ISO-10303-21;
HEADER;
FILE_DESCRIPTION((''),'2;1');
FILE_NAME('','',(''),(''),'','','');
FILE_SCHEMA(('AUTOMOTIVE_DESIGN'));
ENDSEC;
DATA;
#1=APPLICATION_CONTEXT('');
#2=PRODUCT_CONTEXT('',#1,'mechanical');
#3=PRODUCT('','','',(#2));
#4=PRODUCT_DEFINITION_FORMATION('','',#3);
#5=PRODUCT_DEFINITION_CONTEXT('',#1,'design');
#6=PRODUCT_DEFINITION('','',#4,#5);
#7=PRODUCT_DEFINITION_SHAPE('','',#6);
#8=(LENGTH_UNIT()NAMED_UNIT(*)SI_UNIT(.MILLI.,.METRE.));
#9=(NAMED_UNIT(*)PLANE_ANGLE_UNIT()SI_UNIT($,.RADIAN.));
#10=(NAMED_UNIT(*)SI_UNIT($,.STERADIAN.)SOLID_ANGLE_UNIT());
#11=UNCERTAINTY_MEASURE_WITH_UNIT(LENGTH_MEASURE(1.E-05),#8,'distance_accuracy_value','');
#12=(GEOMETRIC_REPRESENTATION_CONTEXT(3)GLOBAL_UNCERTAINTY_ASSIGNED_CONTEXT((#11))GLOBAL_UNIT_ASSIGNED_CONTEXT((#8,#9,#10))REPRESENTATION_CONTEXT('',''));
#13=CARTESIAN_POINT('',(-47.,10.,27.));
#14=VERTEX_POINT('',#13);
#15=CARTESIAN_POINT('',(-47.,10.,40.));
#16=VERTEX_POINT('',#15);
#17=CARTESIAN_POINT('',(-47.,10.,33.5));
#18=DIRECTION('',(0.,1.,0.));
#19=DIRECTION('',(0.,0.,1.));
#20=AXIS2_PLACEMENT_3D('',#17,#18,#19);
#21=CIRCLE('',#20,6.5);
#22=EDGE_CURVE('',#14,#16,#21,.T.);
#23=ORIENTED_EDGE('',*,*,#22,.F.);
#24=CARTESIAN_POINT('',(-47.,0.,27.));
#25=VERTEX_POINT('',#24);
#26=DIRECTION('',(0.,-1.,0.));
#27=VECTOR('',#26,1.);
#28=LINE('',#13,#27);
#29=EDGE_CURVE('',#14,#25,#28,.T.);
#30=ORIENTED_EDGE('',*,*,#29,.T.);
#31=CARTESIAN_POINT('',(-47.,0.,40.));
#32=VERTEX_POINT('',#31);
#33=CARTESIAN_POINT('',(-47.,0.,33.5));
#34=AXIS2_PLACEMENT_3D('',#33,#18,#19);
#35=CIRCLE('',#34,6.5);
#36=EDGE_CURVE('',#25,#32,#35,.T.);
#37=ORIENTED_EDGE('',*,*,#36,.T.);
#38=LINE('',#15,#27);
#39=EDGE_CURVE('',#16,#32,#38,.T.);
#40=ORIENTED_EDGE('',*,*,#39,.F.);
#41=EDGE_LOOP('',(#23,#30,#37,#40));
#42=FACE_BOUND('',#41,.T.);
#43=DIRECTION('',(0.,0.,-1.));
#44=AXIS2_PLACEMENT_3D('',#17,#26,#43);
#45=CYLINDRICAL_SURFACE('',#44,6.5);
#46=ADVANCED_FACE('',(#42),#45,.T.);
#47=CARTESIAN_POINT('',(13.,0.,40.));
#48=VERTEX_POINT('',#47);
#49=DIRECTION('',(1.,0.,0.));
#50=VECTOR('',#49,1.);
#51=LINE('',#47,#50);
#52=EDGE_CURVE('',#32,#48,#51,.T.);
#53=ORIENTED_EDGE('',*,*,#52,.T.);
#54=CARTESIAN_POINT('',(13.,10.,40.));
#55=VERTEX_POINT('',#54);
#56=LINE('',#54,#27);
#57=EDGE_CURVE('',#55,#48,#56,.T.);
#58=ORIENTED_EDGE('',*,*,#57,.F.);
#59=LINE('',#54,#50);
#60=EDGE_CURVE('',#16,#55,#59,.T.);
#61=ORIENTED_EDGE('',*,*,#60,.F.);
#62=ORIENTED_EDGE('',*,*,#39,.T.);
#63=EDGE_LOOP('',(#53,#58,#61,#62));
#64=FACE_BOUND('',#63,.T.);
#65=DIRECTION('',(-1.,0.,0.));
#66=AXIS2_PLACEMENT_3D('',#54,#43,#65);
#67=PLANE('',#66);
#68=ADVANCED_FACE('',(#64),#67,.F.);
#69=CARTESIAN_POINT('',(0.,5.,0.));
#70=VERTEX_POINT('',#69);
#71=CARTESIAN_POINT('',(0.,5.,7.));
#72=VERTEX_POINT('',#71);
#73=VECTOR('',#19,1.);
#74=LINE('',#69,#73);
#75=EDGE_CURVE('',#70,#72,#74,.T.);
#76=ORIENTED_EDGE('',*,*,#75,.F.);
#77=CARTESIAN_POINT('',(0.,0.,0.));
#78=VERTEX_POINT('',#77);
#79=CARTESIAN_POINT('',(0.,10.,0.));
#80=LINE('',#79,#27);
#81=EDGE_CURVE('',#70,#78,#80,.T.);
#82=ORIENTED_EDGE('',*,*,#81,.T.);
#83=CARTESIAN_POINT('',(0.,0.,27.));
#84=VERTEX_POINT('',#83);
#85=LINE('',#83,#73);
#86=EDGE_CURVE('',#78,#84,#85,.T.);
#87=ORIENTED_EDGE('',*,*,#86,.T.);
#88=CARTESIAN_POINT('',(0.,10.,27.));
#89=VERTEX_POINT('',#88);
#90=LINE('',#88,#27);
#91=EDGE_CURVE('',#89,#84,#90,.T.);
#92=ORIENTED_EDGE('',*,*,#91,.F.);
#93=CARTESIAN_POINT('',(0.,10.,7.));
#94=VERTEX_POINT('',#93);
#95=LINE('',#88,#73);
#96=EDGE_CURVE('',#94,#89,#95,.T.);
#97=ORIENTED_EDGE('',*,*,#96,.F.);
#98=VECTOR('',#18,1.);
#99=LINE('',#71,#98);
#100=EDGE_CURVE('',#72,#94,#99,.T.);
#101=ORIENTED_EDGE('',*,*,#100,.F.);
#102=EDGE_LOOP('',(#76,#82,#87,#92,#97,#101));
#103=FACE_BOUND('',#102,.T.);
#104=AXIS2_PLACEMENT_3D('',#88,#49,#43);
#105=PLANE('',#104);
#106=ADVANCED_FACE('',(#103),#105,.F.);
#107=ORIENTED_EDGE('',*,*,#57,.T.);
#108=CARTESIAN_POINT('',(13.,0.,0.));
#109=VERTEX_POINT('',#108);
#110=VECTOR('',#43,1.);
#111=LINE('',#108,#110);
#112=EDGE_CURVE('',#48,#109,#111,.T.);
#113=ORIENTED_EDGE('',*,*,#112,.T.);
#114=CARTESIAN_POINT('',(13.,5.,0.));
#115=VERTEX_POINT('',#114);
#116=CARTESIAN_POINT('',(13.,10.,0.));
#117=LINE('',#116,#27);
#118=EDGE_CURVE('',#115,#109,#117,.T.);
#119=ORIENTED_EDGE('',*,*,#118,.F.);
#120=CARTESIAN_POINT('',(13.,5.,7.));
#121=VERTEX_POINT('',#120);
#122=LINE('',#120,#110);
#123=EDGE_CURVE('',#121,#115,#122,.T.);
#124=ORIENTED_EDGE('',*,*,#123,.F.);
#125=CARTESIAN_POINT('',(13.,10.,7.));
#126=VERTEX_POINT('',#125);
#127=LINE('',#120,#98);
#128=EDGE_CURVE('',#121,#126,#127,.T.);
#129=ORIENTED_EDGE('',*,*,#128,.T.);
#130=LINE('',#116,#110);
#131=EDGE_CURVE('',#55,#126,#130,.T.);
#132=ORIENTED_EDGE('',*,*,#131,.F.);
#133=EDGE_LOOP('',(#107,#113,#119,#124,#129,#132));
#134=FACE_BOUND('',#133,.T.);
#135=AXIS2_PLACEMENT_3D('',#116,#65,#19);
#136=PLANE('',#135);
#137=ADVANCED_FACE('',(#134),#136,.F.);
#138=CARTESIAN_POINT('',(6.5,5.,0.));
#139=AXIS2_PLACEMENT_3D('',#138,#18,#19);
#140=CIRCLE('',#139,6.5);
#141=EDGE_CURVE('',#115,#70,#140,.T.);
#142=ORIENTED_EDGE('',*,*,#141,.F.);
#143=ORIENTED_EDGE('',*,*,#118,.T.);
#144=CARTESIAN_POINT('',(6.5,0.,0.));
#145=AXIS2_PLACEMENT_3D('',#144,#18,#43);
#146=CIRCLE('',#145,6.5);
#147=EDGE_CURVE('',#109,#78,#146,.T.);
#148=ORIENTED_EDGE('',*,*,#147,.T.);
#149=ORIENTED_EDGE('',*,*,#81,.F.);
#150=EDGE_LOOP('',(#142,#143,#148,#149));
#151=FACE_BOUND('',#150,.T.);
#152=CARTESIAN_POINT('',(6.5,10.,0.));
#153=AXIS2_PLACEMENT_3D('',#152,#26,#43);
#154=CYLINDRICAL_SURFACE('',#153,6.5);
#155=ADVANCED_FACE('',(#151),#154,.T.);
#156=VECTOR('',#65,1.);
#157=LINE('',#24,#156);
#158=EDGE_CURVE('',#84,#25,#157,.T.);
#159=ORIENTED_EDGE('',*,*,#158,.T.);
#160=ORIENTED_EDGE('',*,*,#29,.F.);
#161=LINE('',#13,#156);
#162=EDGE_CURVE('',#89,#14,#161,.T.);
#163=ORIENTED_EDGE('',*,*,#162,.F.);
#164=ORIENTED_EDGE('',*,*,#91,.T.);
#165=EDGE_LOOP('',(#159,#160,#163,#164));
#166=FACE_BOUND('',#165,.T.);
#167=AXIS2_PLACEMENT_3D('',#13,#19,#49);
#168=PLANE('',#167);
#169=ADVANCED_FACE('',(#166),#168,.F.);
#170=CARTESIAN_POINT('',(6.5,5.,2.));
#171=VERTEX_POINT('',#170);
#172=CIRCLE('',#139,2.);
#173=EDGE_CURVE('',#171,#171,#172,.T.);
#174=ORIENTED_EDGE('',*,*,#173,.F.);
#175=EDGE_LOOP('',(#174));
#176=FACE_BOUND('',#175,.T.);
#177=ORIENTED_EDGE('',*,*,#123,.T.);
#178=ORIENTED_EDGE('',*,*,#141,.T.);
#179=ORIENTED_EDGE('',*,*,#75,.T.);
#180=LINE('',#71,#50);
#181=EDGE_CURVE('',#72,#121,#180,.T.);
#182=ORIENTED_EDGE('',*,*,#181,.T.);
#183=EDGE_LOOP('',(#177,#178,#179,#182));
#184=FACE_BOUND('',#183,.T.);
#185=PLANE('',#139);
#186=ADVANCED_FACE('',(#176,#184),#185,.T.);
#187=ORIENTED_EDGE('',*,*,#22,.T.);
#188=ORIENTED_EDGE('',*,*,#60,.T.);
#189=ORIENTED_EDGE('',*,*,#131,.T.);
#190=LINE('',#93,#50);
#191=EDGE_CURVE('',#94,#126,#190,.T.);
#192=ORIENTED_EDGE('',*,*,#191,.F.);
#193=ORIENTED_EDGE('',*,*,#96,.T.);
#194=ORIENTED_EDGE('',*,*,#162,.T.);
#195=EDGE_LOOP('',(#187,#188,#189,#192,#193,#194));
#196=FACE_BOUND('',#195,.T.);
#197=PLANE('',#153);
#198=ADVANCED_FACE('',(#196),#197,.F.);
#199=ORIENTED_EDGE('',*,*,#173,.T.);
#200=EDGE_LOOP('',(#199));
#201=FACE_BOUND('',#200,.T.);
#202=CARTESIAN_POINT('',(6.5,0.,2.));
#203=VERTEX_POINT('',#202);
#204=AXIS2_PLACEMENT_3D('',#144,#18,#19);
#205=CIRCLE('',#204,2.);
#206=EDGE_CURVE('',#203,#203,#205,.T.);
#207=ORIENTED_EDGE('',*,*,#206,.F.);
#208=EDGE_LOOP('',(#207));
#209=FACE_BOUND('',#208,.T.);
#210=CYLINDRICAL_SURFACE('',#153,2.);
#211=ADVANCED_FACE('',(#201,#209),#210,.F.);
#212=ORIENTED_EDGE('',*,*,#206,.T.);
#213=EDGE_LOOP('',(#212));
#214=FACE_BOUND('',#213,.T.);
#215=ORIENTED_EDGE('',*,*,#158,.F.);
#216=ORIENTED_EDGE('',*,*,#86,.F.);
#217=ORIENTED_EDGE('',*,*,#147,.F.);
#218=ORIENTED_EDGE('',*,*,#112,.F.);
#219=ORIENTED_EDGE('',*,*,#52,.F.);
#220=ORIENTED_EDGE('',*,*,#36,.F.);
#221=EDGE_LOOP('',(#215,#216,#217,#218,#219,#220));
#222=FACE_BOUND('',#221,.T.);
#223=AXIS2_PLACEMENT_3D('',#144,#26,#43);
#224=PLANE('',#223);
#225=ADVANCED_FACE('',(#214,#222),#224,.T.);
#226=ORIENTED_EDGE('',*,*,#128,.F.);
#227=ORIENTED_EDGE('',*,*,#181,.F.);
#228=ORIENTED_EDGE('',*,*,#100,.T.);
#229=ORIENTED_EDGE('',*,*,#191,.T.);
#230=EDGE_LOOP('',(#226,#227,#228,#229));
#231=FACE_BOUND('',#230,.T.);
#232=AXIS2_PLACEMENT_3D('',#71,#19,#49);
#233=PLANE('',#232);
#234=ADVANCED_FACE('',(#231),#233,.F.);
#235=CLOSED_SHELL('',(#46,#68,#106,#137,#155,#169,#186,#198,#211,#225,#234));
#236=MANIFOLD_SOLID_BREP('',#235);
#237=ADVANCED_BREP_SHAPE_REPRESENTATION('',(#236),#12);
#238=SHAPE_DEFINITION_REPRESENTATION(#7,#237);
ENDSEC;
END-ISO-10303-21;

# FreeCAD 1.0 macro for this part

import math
import FreeCAD as App
import Part
import Sketcher
Q = App.Units.Quantity

doc = App.newDocument("Part")
body = doc.addObject("PartDesign::Body", "Body")

sketch1 = body.newObject("Sketcher::SketchObject", "Sketch")
sketch1.AttachmentSupport = (doc.getObject("XZ_Plane"), [""])
sketch1.MapMode = "FlatFace"
sketch1.addGeometry(Part.LineSegment(App.Vector(13, 40, 0), App.Vector(13, 0, 0)), False)
sketch1.addGeometry(Part.ArcOfCircle(Part.Circle(App.Vector(6.5, 0, 0), App.Vector(0, 0, 1), 6.5), math.radians(180), math.radians(360)), False)
sketch1.addGeometry(Part.LineSegment(App.Vector(0, 0, 0), App.Vector(0, 27, 0)), False)
sketch1.addGeometry(Part.LineSegment(App.Vector(0, 27, 0), App.Vector(-47, 27, 0)), False)
sketch1.addGeometry(Part.ArcOfCircle(Part.Circle(App.Vector(-47, 33.5, 0), App.Vector(0, 0, 1), 6.5), math.radians(90), math.radians(270)), False)
sketch1.addGeometry(Part.LineSegment(App.Vector(-47, 40, 0), App.Vector(13, 40, 0)), False)
sketch1.addGeometry(Part.Circle(App.Vector(6.5, 0, 0), App.Vector(0, 0, 1), 2), False)
sketch1.addConstraint(Sketcher.Constraint("Tangent", 0, 2, 1, 2))
sketch1.addConstraint(Sketcher.Constraint("Tangent", 1, 1, 2, 1))
sketch1.addConstraint(Sketcher.Constraint("Coincident", 2, 2, 3, 1))
sketch1.addConstraint(Sketcher.Constraint("Tangent", 3, 2, 4, 2))
sketch1.addConstraint(Sketcher.Constraint("Tangent", 4, 1, 5, 1))
sketch1.addConstraint(Sketcher.Constraint("Coincident", 5, 2, 0, 1))
sketch1.addConstraint(Sketcher.Constraint("Vertical", 0))
sketch1.addConstraint(Sketcher.Constraint("Vertical", 2))
sketch1.addConstraint(Sketcher.Constraint("Horizontal", 3))
sketch1.addConstraint(Sketcher.Constraint("Horizontal", 5))
sketch1.addConstraint(Sketcher.Constraint("Coincident", 1, 1, -1, 1))
sketch1.addConstraint(Sketcher.Constraint("Coincident", 6, 3, 1, 3))
sketch1.addConstraint(Sketcher.Constraint("Equal", 1, 4))
sketch1.addConstraint(Sketcher.Constraint("Diameter", 6, Q("4 mm")))
sketch1.addConstraint(Sketcher.Constraint("Radius", 1, Q("6.5 mm")))
sketch1.addConstraint(Sketcher.Constraint("DistanceX", 3, 2, 3, 1, Q("47 mm")))
sketch1.addConstraint(Sketcher.Constraint("DistanceY", 0, 2, 0, 1, Q("40 mm")))
pad1 = body.newObject("PartDesign::Pad", "Pad")
pad1.Profile = sketch1
pad1.Length = 10
pad1.Reversed = True

sketch2 = body.newObject("Sketcher::SketchObject", "Sketch001")
sketch2.AttachmentSupport = (doc.getObject("XZ_Plane"), [""])
sketch2.MapMode = "FlatFace"
sketch2.AttachmentOffset = App.Placement(App.Vector(0, 0, -5), App.Rotation())
sketch2.addGeometry(Part.LineSegment(App.Vector(0, 0, 0), App.Vector(0, 7, 0)), False)
sketch2.addGeometry(Part.LineSegment(App.Vector(0, 7, 0), App.Vector(13, 7, 0)), False)
sketch2.addGeometry(Part.LineSegment(App.Vector(13, 7, 0), App.Vector(13, 0, 0)), False)
sketch2.addGeometry(Part.ArcOfCircle(Part.Circle(App.Vector(6.5, 0, 0), App.Vector(0, 0, 1), 6.5), math.radians(180), math.radians(360)), False)
sketch2.addGeometry(Part.Circle(App.Vector(6.5, 0, 0), App.Vector(0, 0, 1), 2), False)
sketch2.addConstraint(Sketcher.Constraint("Coincident", 0, 2, 1, 1))
sketch2.addConstraint(Sketcher.Constraint("Coincident", 1, 2, 2, 1))
sketch2.addConstraint(Sketcher.Constraint("Tangent", 2, 2, 3, 2))
sketch2.addConstraint(Sketcher.Constraint("Tangent", 3, 1, 0, 1))
sketch2.addConstraint(Sketcher.Constraint("Vertical", 0))
sketch2.addConstraint(Sketcher.Constraint("Horizontal", 1))
sketch2.addConstraint(Sketcher.Constraint("Vertical", 2))
sketch2.addConstraint(Sketcher.Constraint("Coincident", 3, 1, -1, 1))
sketch2.addConstraint(Sketcher.Constraint("Coincident", 4, 3, 3, 3))
sketch2.addConstraint(Sketcher.Constraint("Diameter", 4, Q("4 mm")))
sketch2.addConstraint(Sketcher.Constraint("Radius", 3, Q("6.5 mm")))
sketch2.addConstraint(Sketcher.Constraint("DistanceY", 0, 1, 0, 2, Q("7 mm")))
pocket1 = body.newObject("PartDesign::Pocket", "Pocket")
pocket1.Profile = sketch2
pocket1.Length = 5

doc.recompute()
